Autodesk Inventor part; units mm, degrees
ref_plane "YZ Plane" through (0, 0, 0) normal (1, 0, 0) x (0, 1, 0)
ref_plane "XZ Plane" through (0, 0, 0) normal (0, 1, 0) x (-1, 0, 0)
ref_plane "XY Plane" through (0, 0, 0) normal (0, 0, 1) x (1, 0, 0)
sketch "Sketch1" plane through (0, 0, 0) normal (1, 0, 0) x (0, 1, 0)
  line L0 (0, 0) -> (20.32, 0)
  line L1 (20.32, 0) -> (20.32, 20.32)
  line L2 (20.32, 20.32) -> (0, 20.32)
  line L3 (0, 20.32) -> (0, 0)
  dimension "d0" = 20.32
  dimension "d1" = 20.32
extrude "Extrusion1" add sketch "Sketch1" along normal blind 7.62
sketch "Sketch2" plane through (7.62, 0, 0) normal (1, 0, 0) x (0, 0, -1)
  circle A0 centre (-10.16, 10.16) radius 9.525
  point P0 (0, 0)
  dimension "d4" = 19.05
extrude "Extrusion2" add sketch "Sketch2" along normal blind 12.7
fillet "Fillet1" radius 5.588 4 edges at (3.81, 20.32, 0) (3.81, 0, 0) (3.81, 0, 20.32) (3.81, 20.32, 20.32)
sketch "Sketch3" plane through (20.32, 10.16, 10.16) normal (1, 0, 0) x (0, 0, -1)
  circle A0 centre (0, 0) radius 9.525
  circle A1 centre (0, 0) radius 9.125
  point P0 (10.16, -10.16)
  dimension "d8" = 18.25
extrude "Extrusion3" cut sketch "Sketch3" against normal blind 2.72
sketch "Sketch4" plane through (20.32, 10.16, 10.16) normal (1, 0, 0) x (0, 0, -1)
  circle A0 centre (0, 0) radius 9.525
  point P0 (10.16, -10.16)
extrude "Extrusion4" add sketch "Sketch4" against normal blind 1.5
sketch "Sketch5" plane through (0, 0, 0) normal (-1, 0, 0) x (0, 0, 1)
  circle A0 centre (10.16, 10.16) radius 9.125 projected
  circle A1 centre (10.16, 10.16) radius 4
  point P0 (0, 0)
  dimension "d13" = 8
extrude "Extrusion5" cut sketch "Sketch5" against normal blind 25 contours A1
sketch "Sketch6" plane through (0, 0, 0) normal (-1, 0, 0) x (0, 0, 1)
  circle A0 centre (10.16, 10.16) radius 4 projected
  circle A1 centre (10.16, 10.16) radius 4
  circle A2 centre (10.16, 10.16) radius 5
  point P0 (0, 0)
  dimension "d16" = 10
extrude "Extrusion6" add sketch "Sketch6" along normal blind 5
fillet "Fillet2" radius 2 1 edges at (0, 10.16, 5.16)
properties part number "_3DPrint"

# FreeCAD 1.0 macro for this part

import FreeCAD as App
import Part
import Sketcher
from FreeCAD import Vector
Q = App.Units.Quantity


def edges_at(feature, points):
    """Names of the edges that pass closest to the given points."""
    edges = feature.Shape.Edges
    near = lambda p: min(range(len(edges)), key=lambda i: edges[i].distToShape(Part.Vertex(*p))[0])
    return sorted({f"Edge{near(p) + 1}" for p in points})

doc = App.newDocument("Part")
body = doc.addObject("PartDesign::Body", "Body")

sketch1 = body.newObject("Sketcher::SketchObject", "Sketch")
sketch1.AttachmentSupport = (doc.getObject("YZ_Plane"), [""])
sketch1.MapMode = "FlatFace"
sketch1.addGeometry([
    Part.LineSegment(Vector(0, 20, 0), Vector(0, 0, 0)),
    Part.LineSegment(Vector(0, 0, 0), Vector(20, 0, 0)),
    Part.LineSegment(Vector(20, 0, 0), Vector(20, 20, 0)),
    Part.LineSegment(Vector(20, 20, 0), Vector(0, 20, 0)),
], False)
sketch1.addConstraint([
    Sketcher.Constraint("Coincident", 0, 2, 1, 1),
    Sketcher.Constraint("Coincident", 1, 2, 2, 1),
    Sketcher.Constraint("Coincident", 2, 2, 3, 1),
    Sketcher.Constraint("Coincident", 3, 2, 0, 1),
    Sketcher.Constraint("Vertical", 0),
    Sketcher.Constraint("Horizontal", 1),
    Sketcher.Constraint("Vertical", 2),
    Sketcher.Constraint("Horizontal", 3),
    Sketcher.Constraint("Coincident", 0, 2, -1, 1),
    Sketcher.Constraint("Equal", 3, 0),
    Sketcher.Constraint("DistanceX", 1, 1, 1, 2, Q("20.32 mm")),
])
pad1 = body.newObject("PartDesign::Pad", "Pad")
pad1.Profile = sketch1
pad1.Length = 7.62

sketch2 = body.newObject("Sketcher::SketchObject", "Sketch001")
sketch2.AttachmentSupport = (doc.getObject("YZ_Plane"), [""])
sketch2.MapMode = "FlatFace"
sketch2.AttachmentOffset = App.Placement(Vector(0, 0, 7.62), App.Rotation())
sketch2.addGeometry(Part.Circle(Vector(10, 10, 0), Vector(0, 0, 1), 10), False)
sketch2.addConstraint([
    Sketcher.Constraint("Diameter", 0, Q("19.05 mm")),
    Sketcher.Constraint("DistanceX", -1, 1, 0, 3, Q("10.16 mm")),
    Sketcher.Constraint("DistanceY", -1, 1, 0, 3, Q("10.16 mm")),
])
pad2 = body.newObject("PartDesign::Pad", "Pad001")
pad2.Profile = sketch2
pad2.Length = 12.7
doc.recompute()

fillet = body.newObject("PartDesign::Fillet", "Fillet")
fillet.Base = (pad2, edges_at(pad2, [
    (3.81, 20.32, 0),
    (3.81, 0, 0),
    (3.81, 0, 20.32),
    (3.81, 20.32, 20.32),
]))
fillet.Radius = 5.588

sketch3 = body.newObject("Sketcher::SketchObject", "Sketch002")
sketch3.AttachmentSupport = (doc.getObject("YZ_Plane"), [""])
sketch3.MapMode = "FlatFace"
sketch3.AttachmentOffset = App.Placement(Vector(0, 0, 20.32), App.Rotation())
sketch3.addGeometry([
    Part.Circle(Vector(10, 10, 0), Vector(0, 0, 1), 10),
    Part.Circle(Vector(10, 10, 0), Vector(0, 0, 1), 9),
], False)
sketch3.addConstraint([
    Sketcher.Constraint("Coincident", 1, 3, 0, 3),
    Sketcher.Constraint("Diameter", 1, Q("18.25 mm")),
    Sketcher.Constraint("Diameter", 0, Q("19.05 mm")),
    Sketcher.Constraint("DistanceX", -1, 1, 0, 3, Q("10.16 mm")),
    Sketcher.Constraint("DistanceY", -1, 1, 0, 3, Q("10.16 mm")),
])
pocket1 = body.newObject("PartDesign::Pocket", "Pocket")
pocket1.Profile = sketch3
pocket1.Length = 2.72

sketch4 = body.newObject("Sketcher::SketchObject", "Sketch003")
sketch4.AttachmentSupport = (doc.getObject("YZ_Plane"), [""])
sketch4.MapMode = "FlatFace"
sketch4.AttachmentOffset = App.Placement(Vector(0, 0, 20.32), App.Rotation())
sketch4.addGeometry(Part.Circle(Vector(10, 10, 0), Vector(0, 0, 1), 10), False)
sketch4.addConstraint([
    Sketcher.Constraint("Diameter", 0, Q("19.05 mm")),
    Sketcher.Constraint("DistanceX", -1, 1, 0, 3, Q("10.16 mm")),
    Sketcher.Constraint("DistanceY", -1, 1, 0, 3, Q("10.16 mm")),
])
pad3 = body.newObject("PartDesign::Pad", "Pad002")
pad3.Profile = sketch4
pad3.Length = 1.5
pad3.Reversed = True

sketch5 = body.newObject("Sketcher::SketchObject", "Sketch004")
sketch5.AttachmentSupport = (doc.getObject("YZ_Plane"), [""])
sketch5.MapMode = "FlatFace"
sketch5.addGeometry(Part.Circle(Vector(10.2, 10.2, 0), Vector(0, 0, 1), 4), False)
sketch5.addConstraint([
    Sketcher.Constraint("Diameter", 0, Q("8 mm")),
    Sketcher.Constraint("DistanceX", -1, 1, 0, 3, Q("10.16 mm")),
    Sketcher.Constraint("DistanceY", -1, 1, 0, 3, Q("10.16 mm")),
])
pocket2 = body.newObject("PartDesign::Pocket", "Pocket001")
pocket2.Profile = sketch5
pocket2.Length = 25
pocket2.Reversed = True

sketch6 = body.newObject("Sketcher::SketchObject", "Sketch005")
sketch6.AttachmentSupport = (doc.getObject("YZ_Plane"), [""])
sketch6.MapMode = "FlatFace"
sketch6.addGeometry([
    Part.Circle(Vector(10.2, 10.2, 0), Vector(0, 0, 1), 5),
    Part.Circle(Vector(10.2, 10.2, 0), Vector(0, 0, 1), 4),
], False)
sketch6.addConstraint([
    Sketcher.Constraint("Coincident", 1, 3, 0, 3),
    Sketcher.Constraint("Diameter", 0, Q("10 mm")),
    Sketcher.Constraint("Diameter", 1, Q("8 mm")),
    Sketcher.Constraint("DistanceX", -1, 1, 0, 3, Q("10.16 mm")),
    Sketcher.Constraint("DistanceY", -1, 1, 0, 3, Q("10.16 mm")),
])
pad4 = body.newObject("PartDesign::Pad", "Pad003")
pad4.Profile = sketch6
pad4.Length = 5
pad4.Reversed = True
doc.recompute()

fillet2 = body.newObject("PartDesign::Fillet", "Fillet001")
fillet2.Base = (pad4, edges_at(pad4, [(0, 10.16, 5.16)]))
fillet2.Radius = 2

doc.recompute()
